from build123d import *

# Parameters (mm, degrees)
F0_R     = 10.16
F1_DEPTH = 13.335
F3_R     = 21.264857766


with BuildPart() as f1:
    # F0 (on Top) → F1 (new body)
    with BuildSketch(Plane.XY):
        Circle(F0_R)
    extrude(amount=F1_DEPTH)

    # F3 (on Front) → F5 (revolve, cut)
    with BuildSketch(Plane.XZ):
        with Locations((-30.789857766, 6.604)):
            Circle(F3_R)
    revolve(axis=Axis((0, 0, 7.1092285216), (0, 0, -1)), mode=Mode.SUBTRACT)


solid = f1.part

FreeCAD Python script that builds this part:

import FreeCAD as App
import Part
import Sketcher
Q = App.Units.Quantity

doc = App.newDocument("Part")
body = doc.addObject("PartDesign::Body", "Body")

# Sketch on XY plane
sketch1 = body.newObject("Sketcher::SketchObject", "Sketch")
sketch1.AttachmentSupport = (doc.getObject("XY_Plane"), [""])
sketch1.MapMode = "FlatFace"
sketch1.addGeometry(Part.Circle(App.Vector(0, 0, 0), App.Vector(0, 0, 1), 10.16), False)
sketch1.addConstraint(Sketcher.Constraint("Coincident", 0, 3, -1, 1))
sketch1.addConstraint(Sketcher.Constraint("Diameter", 0, Q("0.8 in")))
pad1 = body.newObject("PartDesign::Pad", "Pad")
pad1.Profile = sketch1
pad1.Length = Q("0.525 in")

# Sketch on XZ plane
sketch2 = body.newObject("Sketcher::SketchObject", "Sketch001")
sketch2.AttachmentSupport = (doc.getObject("XZ_Plane"), [""])
sketch2.MapMode = "FlatFace"
sketch2.addGeometry(Part.Circle(App.Vector(-30.789858, 6.604, 0), App.Vector(0, 0, 1), 21.264858), False)
sketch2.addConstraint(Sketcher.Constraint("DistanceY", -1, 1, 0, 3, Q("0.26 in")))
sketch2.addConstraint(Sketcher.Constraint("Diameter", 0, 42.529716))
sketch2.addConstraint(Sketcher.Constraint("DistanceX", 0, 3, -1, 1, 30.789858))
groove = body.newObject("PartDesign::Groove", "Groove")
groove.Profile = sketch2
groove.ReferenceAxis = (sketch2, ["V_Axis"])
groove.Angle = 360

doc.recompute()
